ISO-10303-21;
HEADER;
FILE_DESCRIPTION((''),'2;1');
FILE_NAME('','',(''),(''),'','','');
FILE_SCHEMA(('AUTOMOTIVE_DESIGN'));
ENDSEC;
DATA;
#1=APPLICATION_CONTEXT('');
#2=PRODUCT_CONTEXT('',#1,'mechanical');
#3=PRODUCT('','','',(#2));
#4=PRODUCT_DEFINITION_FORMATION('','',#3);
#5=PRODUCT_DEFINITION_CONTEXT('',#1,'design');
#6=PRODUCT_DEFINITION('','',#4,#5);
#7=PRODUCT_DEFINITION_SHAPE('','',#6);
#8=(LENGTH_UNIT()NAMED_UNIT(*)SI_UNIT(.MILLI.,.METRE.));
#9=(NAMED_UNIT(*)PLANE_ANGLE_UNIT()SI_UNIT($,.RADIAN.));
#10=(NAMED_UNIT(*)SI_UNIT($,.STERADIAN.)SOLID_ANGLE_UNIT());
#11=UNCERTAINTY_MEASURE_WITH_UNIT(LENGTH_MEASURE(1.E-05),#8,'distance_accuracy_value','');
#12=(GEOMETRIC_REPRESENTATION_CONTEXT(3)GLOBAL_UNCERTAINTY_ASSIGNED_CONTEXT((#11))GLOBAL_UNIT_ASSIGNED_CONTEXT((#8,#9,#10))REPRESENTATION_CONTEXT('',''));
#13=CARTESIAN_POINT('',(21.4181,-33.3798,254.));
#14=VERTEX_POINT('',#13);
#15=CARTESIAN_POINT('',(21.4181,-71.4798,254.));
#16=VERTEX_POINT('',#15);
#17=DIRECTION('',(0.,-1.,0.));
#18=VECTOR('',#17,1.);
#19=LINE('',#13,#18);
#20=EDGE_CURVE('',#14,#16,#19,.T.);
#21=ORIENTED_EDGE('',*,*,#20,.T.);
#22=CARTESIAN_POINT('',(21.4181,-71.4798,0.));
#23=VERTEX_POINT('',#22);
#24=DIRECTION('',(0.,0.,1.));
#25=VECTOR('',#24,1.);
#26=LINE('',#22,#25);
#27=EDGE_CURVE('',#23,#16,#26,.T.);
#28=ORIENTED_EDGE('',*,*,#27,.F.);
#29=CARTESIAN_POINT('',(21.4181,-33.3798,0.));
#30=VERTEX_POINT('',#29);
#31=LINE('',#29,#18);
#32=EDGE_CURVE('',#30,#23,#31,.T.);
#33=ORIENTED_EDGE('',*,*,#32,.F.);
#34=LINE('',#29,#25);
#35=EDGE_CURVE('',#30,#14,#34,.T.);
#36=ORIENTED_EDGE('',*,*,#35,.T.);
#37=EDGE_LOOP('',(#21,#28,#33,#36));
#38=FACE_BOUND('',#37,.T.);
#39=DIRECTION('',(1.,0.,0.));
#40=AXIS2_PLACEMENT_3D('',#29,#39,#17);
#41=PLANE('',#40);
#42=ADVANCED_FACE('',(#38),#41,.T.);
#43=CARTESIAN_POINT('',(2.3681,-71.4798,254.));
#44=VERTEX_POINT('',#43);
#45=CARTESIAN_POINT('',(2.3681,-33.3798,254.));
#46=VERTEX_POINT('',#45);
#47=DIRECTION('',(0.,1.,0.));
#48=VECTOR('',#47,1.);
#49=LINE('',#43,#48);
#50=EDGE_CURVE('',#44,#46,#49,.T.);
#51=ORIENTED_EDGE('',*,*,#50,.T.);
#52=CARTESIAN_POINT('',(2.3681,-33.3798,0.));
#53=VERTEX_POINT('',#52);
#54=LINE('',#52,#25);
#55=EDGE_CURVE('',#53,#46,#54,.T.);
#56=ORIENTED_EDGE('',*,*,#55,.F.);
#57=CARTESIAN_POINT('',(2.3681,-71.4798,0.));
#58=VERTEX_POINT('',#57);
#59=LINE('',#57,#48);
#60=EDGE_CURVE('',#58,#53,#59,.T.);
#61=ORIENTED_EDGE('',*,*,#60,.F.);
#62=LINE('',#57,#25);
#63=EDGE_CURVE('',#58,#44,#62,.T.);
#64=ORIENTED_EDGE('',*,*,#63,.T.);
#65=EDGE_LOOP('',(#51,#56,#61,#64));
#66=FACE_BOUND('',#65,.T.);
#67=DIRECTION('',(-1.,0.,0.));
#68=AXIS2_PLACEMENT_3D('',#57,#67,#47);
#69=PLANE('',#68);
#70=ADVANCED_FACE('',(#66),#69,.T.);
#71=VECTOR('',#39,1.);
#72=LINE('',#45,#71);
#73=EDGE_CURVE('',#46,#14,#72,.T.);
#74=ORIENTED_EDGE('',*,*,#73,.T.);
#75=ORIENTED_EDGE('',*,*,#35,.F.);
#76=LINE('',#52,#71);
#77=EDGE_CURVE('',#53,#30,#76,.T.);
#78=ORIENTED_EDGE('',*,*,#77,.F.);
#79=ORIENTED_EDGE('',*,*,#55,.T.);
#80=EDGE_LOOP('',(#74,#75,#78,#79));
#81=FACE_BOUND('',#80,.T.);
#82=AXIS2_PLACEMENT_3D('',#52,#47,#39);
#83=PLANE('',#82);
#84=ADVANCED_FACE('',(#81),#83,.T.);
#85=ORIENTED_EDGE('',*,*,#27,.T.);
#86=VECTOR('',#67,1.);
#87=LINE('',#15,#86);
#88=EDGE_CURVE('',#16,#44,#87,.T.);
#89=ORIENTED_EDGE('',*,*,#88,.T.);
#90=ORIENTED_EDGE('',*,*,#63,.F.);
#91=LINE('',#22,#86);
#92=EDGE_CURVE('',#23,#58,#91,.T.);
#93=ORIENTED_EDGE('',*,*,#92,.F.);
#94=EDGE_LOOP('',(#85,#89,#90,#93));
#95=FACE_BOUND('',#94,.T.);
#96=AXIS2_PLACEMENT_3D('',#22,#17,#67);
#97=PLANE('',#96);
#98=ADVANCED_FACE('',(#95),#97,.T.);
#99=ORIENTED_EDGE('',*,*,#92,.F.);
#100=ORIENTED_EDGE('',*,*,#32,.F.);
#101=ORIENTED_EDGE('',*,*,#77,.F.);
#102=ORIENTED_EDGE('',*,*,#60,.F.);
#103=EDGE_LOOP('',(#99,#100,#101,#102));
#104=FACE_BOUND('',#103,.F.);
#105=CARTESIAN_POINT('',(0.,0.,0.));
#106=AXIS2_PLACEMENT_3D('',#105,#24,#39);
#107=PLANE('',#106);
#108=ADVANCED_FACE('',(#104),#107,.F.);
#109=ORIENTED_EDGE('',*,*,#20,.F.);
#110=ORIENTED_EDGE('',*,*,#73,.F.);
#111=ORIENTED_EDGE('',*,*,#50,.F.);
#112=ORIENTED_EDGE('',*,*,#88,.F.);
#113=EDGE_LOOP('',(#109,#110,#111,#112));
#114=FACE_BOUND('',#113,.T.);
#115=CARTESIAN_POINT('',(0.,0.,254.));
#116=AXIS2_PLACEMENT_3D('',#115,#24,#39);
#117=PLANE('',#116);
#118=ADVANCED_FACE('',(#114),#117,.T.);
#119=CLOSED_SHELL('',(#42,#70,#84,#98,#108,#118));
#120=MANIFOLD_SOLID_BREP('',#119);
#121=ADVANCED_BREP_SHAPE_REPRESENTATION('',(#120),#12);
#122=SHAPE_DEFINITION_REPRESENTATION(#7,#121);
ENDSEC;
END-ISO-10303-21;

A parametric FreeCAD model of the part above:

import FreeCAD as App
import Part
import Sketcher

V = App.Vector
Q = App.Units.Quantity

doc = App.newDocument("Part")
params = doc.addObject("Spreadsheet::Sheet", "Params")
for row, (alias, value) in enumerate([
    ("sketch1_height", "1.5 in"),
    ("sketch1_width", "0.75 in"),
    ("pad1_length", "10 in"),
], start=1):
    params.set(f"A{row}", alias)
    params.set(f"B{row}", "=" + value)
    params.setAlias(f"B{row}", alias)

body = doc.addObject("PartDesign::Body", "Body")

# Sketch on XY plane
sketch1 = body.newObject("Sketcher::SketchObject", "Sketch")
sketch1.AttachmentSupport = (doc.getObject("XY_Plane"), [""])
sketch1.MapMode = "FlatFace"
sketch1.addGeometry(Part.LineSegment(V(21, -33, 0), V(2, -33, 0)), False)
sketch1.addGeometry(Part.LineSegment(V(2, -33, 0), V(2, -71, 0)), False)
sketch1.addGeometry(Part.LineSegment(V(2, -71, 0), V(21, -71, 0)), False)
sketch1.addGeometry(Part.LineSegment(V(21, -71, 0), V(21, -33, 0)), False)
sketch1.addConstraint(Sketcher.Constraint("Coincident", 0, 2, 1, 1))
sketch1.addConstraint(Sketcher.Constraint("Coincident", 1, 2, 2, 1))
sketch1.addConstraint(Sketcher.Constraint("Coincident", 2, 2, 3, 1))
sketch1.addConstraint(Sketcher.Constraint("Coincident", 3, 2, 0, 1))
sketch1.addConstraint(Sketcher.Constraint("Horizontal", 0))
sketch1.addConstraint(Sketcher.Constraint("Vertical", 1))
sketch1.addConstraint(Sketcher.Constraint("Horizontal", 2))
sketch1.addConstraint(Sketcher.Constraint("Vertical", 3))
sketch1.addConstraint(Sketcher.Constraint("DistanceY", 1, 2, 1, 1, Q("1.5 in")))
sketch1.addConstraint(Sketcher.Constraint("DistanceX", 0, 2, 0, 1, Q("0.75 in")))
sketch1.addConstraint(Sketcher.Constraint("DistanceX", -1, 1, 0, 2, 2.368))
sketch1.addConstraint(Sketcher.Constraint("DistanceY", 0, 2, -1, 1, 33.3798))
sketch1.setExpression("Constraints[8]", "Params.sketch1_height")
sketch1.setExpression("Constraints[9]", "Params.sketch1_width")
pad1 = body.newObject("PartDesign::Pad", "Pad")
pad1.Profile = sketch1
pad1.setExpression("Length", "Params.pad1_length")

doc.recompute()
